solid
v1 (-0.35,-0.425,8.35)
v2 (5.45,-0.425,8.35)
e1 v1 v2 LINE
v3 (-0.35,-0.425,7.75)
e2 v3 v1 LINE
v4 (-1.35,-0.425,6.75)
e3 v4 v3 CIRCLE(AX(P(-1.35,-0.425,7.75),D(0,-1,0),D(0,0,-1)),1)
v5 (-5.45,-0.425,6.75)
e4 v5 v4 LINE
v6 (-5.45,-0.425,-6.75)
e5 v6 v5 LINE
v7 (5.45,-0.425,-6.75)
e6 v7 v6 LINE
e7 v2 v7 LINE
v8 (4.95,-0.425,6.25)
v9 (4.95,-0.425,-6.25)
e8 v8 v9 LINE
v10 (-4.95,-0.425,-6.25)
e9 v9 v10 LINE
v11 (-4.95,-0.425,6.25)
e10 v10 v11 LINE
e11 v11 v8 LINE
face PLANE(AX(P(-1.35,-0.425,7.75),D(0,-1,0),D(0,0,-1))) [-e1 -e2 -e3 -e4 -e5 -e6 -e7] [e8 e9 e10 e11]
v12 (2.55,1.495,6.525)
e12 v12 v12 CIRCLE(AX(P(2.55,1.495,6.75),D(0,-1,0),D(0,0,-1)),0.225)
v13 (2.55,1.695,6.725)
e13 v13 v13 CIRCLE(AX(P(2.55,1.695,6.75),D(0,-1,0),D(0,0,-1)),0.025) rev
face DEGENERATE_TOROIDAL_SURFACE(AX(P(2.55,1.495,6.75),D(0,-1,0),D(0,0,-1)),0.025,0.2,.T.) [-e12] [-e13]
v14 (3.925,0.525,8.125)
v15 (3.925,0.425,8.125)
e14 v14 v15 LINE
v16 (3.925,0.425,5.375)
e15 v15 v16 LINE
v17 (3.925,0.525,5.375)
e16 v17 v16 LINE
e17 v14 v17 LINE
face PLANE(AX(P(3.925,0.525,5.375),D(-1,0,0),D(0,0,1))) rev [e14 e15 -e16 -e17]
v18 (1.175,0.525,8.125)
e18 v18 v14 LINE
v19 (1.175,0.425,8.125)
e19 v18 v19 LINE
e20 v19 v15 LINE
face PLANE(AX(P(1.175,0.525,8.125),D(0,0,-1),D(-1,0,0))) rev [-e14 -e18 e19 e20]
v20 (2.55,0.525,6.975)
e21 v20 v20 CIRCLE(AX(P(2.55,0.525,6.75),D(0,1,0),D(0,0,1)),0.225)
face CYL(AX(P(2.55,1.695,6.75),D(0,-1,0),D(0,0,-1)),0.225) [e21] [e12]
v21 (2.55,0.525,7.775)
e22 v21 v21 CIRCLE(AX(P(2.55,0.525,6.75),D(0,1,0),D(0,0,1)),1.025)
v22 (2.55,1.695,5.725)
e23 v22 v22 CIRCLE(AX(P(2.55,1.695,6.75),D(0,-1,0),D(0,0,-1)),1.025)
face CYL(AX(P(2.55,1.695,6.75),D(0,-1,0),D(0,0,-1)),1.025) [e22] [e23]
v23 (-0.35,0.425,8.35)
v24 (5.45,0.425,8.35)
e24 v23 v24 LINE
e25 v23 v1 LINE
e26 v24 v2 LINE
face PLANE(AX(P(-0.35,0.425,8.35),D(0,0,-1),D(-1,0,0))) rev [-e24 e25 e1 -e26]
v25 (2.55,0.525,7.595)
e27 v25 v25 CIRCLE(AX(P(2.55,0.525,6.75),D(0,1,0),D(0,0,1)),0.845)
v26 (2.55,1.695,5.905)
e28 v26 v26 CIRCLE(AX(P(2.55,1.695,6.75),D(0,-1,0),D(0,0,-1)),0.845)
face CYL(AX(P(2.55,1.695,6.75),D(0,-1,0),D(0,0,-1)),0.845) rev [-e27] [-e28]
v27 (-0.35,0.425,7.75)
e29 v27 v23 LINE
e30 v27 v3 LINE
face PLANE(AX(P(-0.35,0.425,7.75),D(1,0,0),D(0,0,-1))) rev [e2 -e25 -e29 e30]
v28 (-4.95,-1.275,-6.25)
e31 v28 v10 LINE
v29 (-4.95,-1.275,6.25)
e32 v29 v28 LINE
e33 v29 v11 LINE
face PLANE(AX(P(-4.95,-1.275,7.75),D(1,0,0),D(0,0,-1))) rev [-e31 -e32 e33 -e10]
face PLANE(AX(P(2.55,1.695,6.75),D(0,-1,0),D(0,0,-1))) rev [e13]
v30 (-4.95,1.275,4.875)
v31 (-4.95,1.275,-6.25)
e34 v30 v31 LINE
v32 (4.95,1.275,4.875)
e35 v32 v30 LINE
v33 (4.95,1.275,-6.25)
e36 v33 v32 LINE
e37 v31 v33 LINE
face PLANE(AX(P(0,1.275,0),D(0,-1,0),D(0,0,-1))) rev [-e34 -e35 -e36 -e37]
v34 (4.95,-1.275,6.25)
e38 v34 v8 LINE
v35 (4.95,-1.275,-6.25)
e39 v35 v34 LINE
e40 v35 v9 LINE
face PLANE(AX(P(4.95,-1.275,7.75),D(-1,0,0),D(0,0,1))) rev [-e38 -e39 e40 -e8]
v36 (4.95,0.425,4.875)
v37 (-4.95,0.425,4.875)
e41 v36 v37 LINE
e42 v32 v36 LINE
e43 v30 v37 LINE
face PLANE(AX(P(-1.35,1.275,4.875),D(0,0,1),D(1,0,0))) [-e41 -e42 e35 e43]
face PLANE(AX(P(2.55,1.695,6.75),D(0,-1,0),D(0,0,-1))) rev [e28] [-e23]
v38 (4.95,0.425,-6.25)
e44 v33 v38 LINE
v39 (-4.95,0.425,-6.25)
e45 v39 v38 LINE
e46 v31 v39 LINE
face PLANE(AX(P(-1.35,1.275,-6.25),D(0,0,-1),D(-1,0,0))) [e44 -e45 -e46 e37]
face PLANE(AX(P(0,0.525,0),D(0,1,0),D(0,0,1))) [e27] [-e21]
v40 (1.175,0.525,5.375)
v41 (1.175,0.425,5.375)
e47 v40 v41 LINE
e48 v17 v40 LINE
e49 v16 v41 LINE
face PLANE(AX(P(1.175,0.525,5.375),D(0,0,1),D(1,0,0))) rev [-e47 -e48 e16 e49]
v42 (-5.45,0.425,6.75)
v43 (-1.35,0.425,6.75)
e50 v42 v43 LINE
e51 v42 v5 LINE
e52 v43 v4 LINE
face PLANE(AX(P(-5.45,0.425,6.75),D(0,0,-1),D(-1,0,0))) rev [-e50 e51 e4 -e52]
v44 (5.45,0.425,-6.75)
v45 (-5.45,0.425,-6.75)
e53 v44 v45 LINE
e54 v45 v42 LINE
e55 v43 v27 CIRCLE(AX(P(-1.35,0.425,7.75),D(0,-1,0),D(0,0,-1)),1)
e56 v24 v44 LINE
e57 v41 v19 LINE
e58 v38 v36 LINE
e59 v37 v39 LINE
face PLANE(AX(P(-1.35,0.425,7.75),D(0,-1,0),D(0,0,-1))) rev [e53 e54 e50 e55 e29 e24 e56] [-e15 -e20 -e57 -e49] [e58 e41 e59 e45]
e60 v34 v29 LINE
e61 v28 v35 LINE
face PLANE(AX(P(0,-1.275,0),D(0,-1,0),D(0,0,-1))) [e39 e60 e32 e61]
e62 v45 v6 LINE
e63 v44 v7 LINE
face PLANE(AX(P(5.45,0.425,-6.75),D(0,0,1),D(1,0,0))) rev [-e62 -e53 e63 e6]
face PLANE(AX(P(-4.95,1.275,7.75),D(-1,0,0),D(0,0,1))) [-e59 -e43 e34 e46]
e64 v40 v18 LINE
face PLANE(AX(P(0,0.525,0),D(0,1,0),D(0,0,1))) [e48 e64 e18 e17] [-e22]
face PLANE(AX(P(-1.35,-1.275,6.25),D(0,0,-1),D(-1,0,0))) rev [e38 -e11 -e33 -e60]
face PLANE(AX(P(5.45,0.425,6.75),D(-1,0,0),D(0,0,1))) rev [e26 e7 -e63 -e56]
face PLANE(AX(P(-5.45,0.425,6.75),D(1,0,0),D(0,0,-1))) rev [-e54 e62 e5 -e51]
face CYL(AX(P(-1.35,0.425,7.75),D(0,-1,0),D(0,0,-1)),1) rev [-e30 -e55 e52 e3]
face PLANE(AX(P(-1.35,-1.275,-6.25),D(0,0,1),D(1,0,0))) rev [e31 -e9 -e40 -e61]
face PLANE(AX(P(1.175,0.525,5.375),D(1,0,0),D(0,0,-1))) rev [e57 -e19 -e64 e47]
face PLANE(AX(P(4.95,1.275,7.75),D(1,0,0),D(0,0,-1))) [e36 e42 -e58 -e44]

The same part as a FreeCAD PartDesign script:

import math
import FreeCAD as App
import Part
import Sketcher

V = App.Vector
Q = App.Units.Quantity


def edges_at(feature, points):
    """Names of the edges that pass closest to the given points."""
    edges = feature.Shape.Edges
    near = lambda p: min(range(len(edges)), key=lambda i: edges[i].distToShape(Part.Vertex(*p))[0])
    return sorted({f"Edge{near(p) + 1}" for p in points})

doc = App.newDocument("Part")
body = doc.addObject("PartDesign::Body", "Body")

sketch1 = body.newObject("Sketcher::SketchObject", "Sketch")
sketch1.AttachmentSupport = (doc.getObject("XZ_Plane"), [""])
sketch1.MapMode = "FlatFace"
sketch1.addGeometry([
    Part.LineSegment(V(-5.5, 6.8, 0), V(-1.4, 6.8, 0)),
    Part.ArcOfCircle(Part.Circle(V(-1.4, 7.8, 0), V(0, 0, 1), 1), math.radians(-90), math.radians(0)),
    Part.LineSegment(V(-0.3, 7.8, 0), V(-0.3, 8.3, 0)),
    Part.LineSegment(V(-0.3, 8.3, 0), V(5.5, 8.3, 0)),
    Part.LineSegment(V(5.5, 8.3, 0), V(5.5, -6.8, 0)),
    Part.LineSegment(V(5.5, -6.8, 0), V(-5.5, -6.8, 0)),
    Part.LineSegment(V(-5.5, -6.8, 0), V(-5.5, 6.8, 0)),
], False)
sketch1.addConstraint([
    Sketcher.Constraint("Tangent", 0, 2, 1, 1),
    Sketcher.Constraint("Tangent", 1, 2, 2, 1),
    Sketcher.Constraint("Coincident", 2, 2, 3, 1),
    Sketcher.Constraint("Coincident", 3, 2, 4, 1),
    Sketcher.Constraint("Coincident", 4, 2, 5, 1),
    Sketcher.Constraint("Coincident", 5, 2, 6, 1),
    Sketcher.Constraint("Coincident", 6, 2, 0, 1),
    Sketcher.Constraint("Horizontal", 0),
    Sketcher.Constraint("Vertical", 2),
    Sketcher.Constraint("Horizontal", 3),
    Sketcher.Constraint("Vertical", 4),
    Sketcher.Constraint("Horizontal", 5),
    Sketcher.Constraint("Vertical", 6),
    Sketcher.Constraint("Symmetric", 4, 2, 6, 2, -1, 1),
    Sketcher.Constraint("Radius", 1, Q("1 mm")),
    Sketcher.Constraint("DistanceX", 0, 1, 0, 2, Q("4.1 mm")),
    Sketcher.Constraint("DistanceX", 3, 1, 3, 2, Q("5.8 mm")),
    Sketcher.Constraint("DistanceY", 2, 1, 2, 2, Q("0.6 mm")),
    Sketcher.Constraint("DistanceY", 4, 2, 4, 1, Q("15.1 mm")),
])
pad1 = body.newObject("PartDesign::Pad", "Pad")
pad1.Profile = sketch1
pad1.Length = 0.85
pad1.Midplane = True

sketch2 = body.newObject("Sketcher::SketchObject", "Sketch001")
sketch2.AttachmentSupport = (doc.getObject("XZ_Plane"), [""])
sketch2.MapMode = "FlatFace"
sketch2.AttachmentOffset = App.Placement(V(0, 0, -0.425), App.Rotation())
sketch2.addGeometry([
    Part.LineSegment(V(1.2, 5.4, 0), V(1.2, 8.1, 0)),
    Part.LineSegment(V(1.2, 8.1, 0), V(3.9, 8.1, 0)),
    Part.LineSegment(V(3.9, 8.1, 0), V(3.9, 5.4, 0)),
    Part.LineSegment(V(3.9, 5.4, 0), V(1.2, 5.4, 0)),
], False)
sketch2.addConstraint([
    Sketcher.Constraint("Coincident", 0, 2, 1, 1),
    Sketcher.Constraint("Coincident", 1, 2, 2, 1),
    Sketcher.Constraint("Coincident", 2, 2, 3, 1),
    Sketcher.Constraint("Coincident", 3, 2, 0, 1),
    Sketcher.Constraint("Vertical", 0),
    Sketcher.Constraint("Horizontal", 1),
    Sketcher.Constraint("Vertical", 2),
    Sketcher.Constraint("Horizontal", 3),
    Sketcher.Constraint("Equal", 3, 0),
    Sketcher.Constraint("DistanceX", 1, 1, 1, 2, Q("2.75 mm")),
    Sketcher.Constraint("DistanceX", -1, 1, 0, 2, Q("1.175 mm")),
    Sketcher.Constraint("DistanceY", -1, 1, 0, 2, Q("8.125 mm")),
])
pad2 = body.newObject("PartDesign::Pad", "Pad001")
pad2.Profile = sketch2
pad2.Length = 0.1
pad2.Reversed = True

sketch3 = body.newObject("Sketcher::SketchObject", "Sketch002")
sketch3.AttachmentSupport = (doc.getObject("XZ_Plane"), [""])
sketch3.MapMode = "FlatFace"
sketch3.AttachmentOffset = App.Placement(V(0, 0, 0.425), App.Rotation())
sketch3.addGeometry([
    Part.Circle(V(2.55, 6.75, 0), V(0, 0, 1), 1.02),
    Part.Circle(V(2.55, 6.75, 0), V(0, 0, 1), 0.84),
    Part.Circle(V(2.55, 6.75, 0), V(0, 0, 1), 0.23),
], False)
sketch3.addConstraint([
    Sketcher.Constraint("Coincident", 1, 3, 0, 3),
    Sketcher.Constraint("Coincident", 2, 3, 0, 3),
    Sketcher.Constraint("Diameter", 0, Q("2.05 mm")),
    Sketcher.Constraint("Diameter", 1, Q("1.69 mm")),
    Sketcher.Constraint("Diameter", 2, Q("0.45 mm")),
    Sketcher.Constraint("DistanceX", -1, 1, 0, 3, Q("2.55 mm")),
    Sketcher.Constraint("DistanceY", -1, 1, 0, 3, Q("6.75 mm")),
])
pad3 = body.newObject("PartDesign::Pad", "Pad002")
pad3.Profile = sketch3
pad3.Length = 2.12
pad3.Reversed = True
doc.recompute()

fillet = body.newObject("PartDesign::Fillet", "Fillet")
fillet.Base = (pad3, edges_at(pad3, [(2.325, 1.695, 6.75)]))
fillet.Radius = 0.2

sketch4 = body.newObject("Sketcher::SketchObject", "Sketch003")
sketch4.AttachmentSupport = (doc.getObject("XZ_Plane"), [""])
sketch4.MapMode = "FlatFace"
sketch4.AttachmentOffset = App.Placement(V(0, 0, -0.425), App.Rotation())
sketch4.addGeometry([
    Part.LineSegment(V(-5, 6, 0), V(-5, -6, 0)),
    Part.LineSegment(V(-5, -6, 0), V(5, -6, 0)),
    Part.LineSegment(V(5, -6, 0), V(5, 6, 0)),
    Part.LineSegment(V(5, 6, 0), V(-5, 6, 0)),
], False)
sketch4.addConstraint([
    Sketcher.Constraint("Coincident", 0, 2, 1, 1),
    Sketcher.Constraint("Coincident", 1, 2, 2, 1),
    Sketcher.Constraint("Coincident", 2, 2, 3, 1),
    Sketcher.Constraint("Coincident", 3, 2, 0, 1),
    Sketcher.Constraint("Vertical", 0),
    Sketcher.Constraint("Horizontal", 1),
    Sketcher.Constraint("Vertical", 2),
    Sketcher.Constraint("Horizontal", 3),
    Sketcher.Constraint("Symmetric", 0, 2, 2, 2, -1, 1),
    Sketcher.Constraint("DistanceX", 1, 1, 1, 2, Q("9.9 mm")),
    Sketcher.Constraint("DistanceY", 0, 2, 0, 1, Q("12.5 mm")),
])
pad4 = body.newObject("PartDesign::Pad", "Pad003")
pad4.Profile = sketch4
pad4.Length = 1.7

sketch5 = body.newObject("Sketcher::SketchObject", "Sketch004")
sketch5.AttachmentSupport = (doc.getObject("XZ_Plane"), [""])
sketch5.MapMode = "FlatFace"
sketch5.AttachmentOffset = App.Placement(V(0, 0, 0.425), App.Rotation())
sketch5.addGeometry([
    Part.LineSegment(V(-5, -6, 0), V(-5, 5, 0)),
    Part.LineSegment(V(-5, 5, 0), V(5, 5, 0)),
    Part.LineSegment(V(5, 5, 0), V(5, -6, 0)),
    Part.LineSegment(V(5, -6, 0), V(-5, -6, 0)),
], False)
sketch5.addConstraint([
    Sketcher.Constraint("Coincident", 0, 2, 1, 1),
    Sketcher.Constraint("Coincident", 1, 2, 2, 1),
    Sketcher.Constraint("Coincident", 2, 2, 3, 1),
    Sketcher.Constraint("Coincident", 3, 2, 0, 1),
    Sketcher.Constraint("Vertical", 0),
    Sketcher.Constraint("Horizontal", 1),
    Sketcher.Constraint("Vertical", 2),
    Sketcher.Constraint("Horizontal", 3),
    Sketcher.Constraint("DistanceX", 1, 1, 1, 2, Q("9.9 mm")),
    Sketcher.Constraint("DistanceY", 0, 1, 0, 2, Q("11.125 mm")),
    Sketcher.Constraint("DistanceX", 0, 2, -1, 1, Q("4.95 mm")),
    Sketcher.Constraint("DistanceY", 2, 2, -1, 1, Q("6.25 mm")),
])
pad5 = body.newObject("PartDesign::Pad", "Pad004")
pad5.Profile = sketch5
pad5.Length = 1.7
pad5.Reversed = True

doc.recompute()
